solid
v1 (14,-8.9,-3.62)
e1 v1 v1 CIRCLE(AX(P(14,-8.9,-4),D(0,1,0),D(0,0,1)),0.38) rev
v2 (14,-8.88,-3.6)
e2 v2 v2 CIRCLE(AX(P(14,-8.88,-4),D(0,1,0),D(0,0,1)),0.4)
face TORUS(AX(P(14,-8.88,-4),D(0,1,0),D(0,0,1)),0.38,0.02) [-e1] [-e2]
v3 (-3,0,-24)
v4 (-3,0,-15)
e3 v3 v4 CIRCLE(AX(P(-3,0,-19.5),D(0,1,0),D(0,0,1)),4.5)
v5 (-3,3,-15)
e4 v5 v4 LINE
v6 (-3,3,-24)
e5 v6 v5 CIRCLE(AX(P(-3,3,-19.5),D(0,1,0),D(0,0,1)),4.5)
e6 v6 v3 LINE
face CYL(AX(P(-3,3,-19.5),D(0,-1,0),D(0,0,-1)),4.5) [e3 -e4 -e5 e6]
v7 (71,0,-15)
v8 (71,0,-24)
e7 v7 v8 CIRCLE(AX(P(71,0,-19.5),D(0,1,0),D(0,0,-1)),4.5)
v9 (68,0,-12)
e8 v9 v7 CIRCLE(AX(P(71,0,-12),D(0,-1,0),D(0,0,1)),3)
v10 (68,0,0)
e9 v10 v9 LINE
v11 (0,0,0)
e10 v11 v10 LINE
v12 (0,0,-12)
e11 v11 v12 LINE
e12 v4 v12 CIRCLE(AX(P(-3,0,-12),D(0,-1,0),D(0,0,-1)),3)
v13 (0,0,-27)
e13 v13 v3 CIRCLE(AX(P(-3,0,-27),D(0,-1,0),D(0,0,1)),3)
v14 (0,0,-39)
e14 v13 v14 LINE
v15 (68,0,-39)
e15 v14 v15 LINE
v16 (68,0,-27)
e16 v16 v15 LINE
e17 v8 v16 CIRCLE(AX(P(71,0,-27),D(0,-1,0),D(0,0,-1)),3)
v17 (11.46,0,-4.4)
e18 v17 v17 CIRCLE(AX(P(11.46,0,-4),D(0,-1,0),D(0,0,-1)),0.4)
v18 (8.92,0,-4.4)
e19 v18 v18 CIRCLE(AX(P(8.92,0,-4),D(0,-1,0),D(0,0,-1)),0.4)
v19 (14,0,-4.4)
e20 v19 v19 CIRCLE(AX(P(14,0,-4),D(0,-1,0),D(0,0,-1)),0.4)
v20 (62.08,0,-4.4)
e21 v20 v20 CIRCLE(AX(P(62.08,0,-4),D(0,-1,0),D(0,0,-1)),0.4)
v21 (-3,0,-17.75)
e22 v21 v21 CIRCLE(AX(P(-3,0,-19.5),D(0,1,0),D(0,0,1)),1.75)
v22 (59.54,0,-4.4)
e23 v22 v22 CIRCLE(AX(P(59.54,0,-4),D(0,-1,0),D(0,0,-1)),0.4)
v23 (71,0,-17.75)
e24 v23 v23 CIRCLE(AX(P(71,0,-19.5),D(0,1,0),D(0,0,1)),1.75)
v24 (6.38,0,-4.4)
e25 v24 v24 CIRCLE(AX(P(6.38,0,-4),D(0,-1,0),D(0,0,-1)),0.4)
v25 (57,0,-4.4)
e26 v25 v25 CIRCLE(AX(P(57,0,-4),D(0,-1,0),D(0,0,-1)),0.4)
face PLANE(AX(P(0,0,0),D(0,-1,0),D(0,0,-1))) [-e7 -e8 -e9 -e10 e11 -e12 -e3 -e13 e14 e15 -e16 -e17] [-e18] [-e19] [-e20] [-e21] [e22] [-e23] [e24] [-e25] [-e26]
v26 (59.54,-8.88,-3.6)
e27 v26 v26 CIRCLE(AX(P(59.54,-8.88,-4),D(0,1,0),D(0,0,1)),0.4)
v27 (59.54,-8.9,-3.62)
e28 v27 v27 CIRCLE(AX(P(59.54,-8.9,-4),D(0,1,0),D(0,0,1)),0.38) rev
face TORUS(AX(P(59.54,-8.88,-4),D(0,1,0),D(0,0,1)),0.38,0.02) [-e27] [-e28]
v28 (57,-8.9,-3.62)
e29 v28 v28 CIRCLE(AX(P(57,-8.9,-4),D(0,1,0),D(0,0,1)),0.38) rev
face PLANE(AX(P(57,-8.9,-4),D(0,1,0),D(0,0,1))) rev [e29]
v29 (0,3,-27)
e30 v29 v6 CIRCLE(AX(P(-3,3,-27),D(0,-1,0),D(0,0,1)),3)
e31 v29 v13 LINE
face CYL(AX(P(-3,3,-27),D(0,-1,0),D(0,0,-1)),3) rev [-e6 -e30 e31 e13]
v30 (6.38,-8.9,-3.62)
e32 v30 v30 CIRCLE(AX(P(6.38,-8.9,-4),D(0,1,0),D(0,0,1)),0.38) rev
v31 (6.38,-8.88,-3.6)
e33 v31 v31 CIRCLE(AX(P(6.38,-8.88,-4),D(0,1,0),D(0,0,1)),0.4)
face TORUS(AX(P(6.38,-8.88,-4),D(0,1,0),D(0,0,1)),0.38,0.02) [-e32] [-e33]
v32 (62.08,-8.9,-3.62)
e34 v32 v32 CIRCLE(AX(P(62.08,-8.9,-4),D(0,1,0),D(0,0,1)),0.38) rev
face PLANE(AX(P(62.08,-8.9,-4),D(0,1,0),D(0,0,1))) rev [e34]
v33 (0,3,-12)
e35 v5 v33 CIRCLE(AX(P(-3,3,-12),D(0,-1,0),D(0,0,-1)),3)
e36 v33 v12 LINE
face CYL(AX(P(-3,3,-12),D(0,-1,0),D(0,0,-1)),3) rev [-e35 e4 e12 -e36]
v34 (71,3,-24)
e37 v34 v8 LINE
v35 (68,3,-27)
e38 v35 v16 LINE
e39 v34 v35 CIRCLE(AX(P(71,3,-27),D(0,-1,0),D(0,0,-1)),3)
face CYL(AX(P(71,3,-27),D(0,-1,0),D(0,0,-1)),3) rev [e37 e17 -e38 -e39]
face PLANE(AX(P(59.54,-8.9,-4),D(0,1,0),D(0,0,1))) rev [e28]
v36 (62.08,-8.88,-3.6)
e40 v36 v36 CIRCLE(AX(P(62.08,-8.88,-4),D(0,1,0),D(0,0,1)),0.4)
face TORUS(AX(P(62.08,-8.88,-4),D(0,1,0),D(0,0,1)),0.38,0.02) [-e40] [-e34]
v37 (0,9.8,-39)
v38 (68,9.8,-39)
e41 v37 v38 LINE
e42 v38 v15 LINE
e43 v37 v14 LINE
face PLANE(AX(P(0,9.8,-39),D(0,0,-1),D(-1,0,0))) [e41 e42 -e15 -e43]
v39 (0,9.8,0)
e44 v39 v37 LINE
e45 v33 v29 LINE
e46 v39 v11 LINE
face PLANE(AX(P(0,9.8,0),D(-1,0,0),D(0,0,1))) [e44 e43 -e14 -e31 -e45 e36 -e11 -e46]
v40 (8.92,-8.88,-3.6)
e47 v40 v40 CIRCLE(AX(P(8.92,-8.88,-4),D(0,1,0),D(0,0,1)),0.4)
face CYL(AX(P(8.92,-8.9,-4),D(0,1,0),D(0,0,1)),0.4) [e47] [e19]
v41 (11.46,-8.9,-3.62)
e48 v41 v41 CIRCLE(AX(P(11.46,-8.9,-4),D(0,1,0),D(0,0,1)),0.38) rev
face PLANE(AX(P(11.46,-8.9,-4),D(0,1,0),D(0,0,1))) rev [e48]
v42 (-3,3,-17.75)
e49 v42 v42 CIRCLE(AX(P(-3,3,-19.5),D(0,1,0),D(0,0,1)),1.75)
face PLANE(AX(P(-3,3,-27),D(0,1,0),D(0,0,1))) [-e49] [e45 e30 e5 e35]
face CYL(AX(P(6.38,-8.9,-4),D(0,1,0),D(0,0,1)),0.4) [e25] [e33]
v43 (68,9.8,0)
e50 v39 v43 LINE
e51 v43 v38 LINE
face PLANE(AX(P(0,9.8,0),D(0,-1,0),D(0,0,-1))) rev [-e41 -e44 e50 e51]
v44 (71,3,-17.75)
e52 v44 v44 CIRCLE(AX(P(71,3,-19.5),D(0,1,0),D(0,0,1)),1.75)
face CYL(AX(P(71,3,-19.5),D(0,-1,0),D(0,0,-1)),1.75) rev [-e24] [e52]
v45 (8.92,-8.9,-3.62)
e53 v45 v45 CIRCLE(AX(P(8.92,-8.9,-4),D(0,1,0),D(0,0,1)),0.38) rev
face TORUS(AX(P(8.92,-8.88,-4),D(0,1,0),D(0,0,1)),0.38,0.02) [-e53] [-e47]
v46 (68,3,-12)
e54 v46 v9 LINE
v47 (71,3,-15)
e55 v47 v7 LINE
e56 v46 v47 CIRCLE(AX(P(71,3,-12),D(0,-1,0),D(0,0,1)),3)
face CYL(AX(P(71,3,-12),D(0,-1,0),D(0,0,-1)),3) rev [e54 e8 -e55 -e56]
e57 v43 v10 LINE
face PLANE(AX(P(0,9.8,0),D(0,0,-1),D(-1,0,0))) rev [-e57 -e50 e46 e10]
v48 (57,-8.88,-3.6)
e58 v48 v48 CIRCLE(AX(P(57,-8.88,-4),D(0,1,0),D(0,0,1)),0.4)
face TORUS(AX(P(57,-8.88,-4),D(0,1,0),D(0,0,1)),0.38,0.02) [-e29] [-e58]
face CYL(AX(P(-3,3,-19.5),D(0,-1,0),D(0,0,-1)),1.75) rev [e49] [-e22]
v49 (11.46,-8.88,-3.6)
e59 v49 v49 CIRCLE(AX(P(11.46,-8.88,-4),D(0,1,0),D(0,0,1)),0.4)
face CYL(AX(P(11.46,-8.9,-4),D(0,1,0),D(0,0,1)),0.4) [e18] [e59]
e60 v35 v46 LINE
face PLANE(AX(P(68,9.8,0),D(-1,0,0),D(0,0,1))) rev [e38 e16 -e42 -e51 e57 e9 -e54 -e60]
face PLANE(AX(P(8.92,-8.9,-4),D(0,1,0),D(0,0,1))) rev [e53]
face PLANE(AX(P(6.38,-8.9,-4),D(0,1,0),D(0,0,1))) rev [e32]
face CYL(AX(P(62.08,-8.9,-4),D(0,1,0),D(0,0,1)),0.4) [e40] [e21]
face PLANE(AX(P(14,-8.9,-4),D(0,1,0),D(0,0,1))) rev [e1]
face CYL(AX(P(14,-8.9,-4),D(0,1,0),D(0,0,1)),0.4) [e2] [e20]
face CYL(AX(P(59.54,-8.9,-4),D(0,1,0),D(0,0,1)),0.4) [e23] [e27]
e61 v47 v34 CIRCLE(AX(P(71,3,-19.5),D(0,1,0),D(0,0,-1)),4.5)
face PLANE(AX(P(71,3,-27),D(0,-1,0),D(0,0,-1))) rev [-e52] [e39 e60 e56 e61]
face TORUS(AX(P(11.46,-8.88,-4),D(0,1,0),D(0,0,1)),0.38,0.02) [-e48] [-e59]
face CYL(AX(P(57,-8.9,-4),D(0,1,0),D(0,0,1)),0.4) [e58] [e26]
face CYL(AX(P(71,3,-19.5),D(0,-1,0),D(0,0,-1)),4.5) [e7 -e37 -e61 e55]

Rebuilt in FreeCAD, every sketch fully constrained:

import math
import FreeCAD as App
import Part
import Sketcher


def edges_at(feature, points):
    """Names of the edges that pass closest to the given points."""
    edges = feature.Shape.Edges
    near = lambda p: min(range(len(edges)), key=lambda i: edges[i].distToShape(Part.Vertex(*p))[0])
    return sorted({f"Edge{near(p) + 1}" for p in points})

doc = App.newDocument("Part")
body = doc.addObject("PartDesign::Body", "Body")

# Sketch on XZ plane
sketch1 = doc.addObject("Sketcher::SketchObject", "Sketch")
body.addObject(sketch1)
sketch1.AttachmentSupport = (doc.XZ_Plane, [""])
sketch1.MapMode = "FlatFace"
sketch1.addGeometry(Part.LineSegment(App.Vector(0, -39, 0), App.Vector(0, 0, 0)), False)
sketch1.addGeometry(Part.LineSegment(App.Vector(0, 0, 0), App.Vector(68, 0, 0)), False)
sketch1.addGeometry(Part.LineSegment(App.Vector(68, 0, 0), App.Vector(68, -39, 0)), False)
sketch1.addGeometry(Part.LineSegment(App.Vector(68, -39, 0), App.Vector(0, -39, 0)), False)
sketch1.addConstraint(Sketcher.Constraint("Coincident", 0, 2, 1, 1))
sketch1.addConstraint(Sketcher.Constraint("Coincident", 1, 2, 2, 1))
sketch1.addConstraint(Sketcher.Constraint("Coincident", 2, 2, 3, 1))
sketch1.addConstraint(Sketcher.Constraint("Coincident", 3, 2, 0, 1))
sketch1.addConstraint(Sketcher.Constraint("Vertical", 0))
sketch1.addConstraint(Sketcher.Constraint("Horizontal", 1))
sketch1.addConstraint(Sketcher.Constraint("Vertical", 2))
sketch1.addConstraint(Sketcher.Constraint("Horizontal", 3))
sketch1.addConstraint(Sketcher.Constraint("Coincident", 0, 2, -1, 1))
sketch1.addConstraint(Sketcher.Constraint("DistanceX", 1, 1, 1, 2, 68.0))
sketch1.addConstraint(Sketcher.Constraint("DistanceY", 0, 1, 0, 2, 39.0))
pad1 = doc.addObject("PartDesign::Pad", "Pad")
body.addObject(pad1)
pad1.Profile = sketch1
pad1.Length = 9.8
pad1.Reversed = True

# Sketch on XZ plane
sketch2 = doc.addObject("Sketcher::SketchObject", "Sketch001")
body.addObject(sketch2)
sketch2.AttachmentSupport = (doc.XZ_Plane, [""])
sketch2.MapMode = "FlatFace"
sketch2.addGeometry(Part.LineSegment(App.Vector(0, -12, 0), App.Vector(0, -27, 0)), False)
sketch2.addGeometry(Part.ArcOfCircle(Part.Circle(App.Vector(-3, -27, 0), App.Vector(0, 0, 1), 3), math.radians(0), math.radians(90)), False)
sketch2.addGeometry(Part.ArcOfCircle(Part.Circle(App.Vector(-3, -19.5, 0), App.Vector(0, 0, 1), 4.5), math.radians(90), math.radians(270)), False)
sketch2.addGeometry(Part.ArcOfCircle(Part.Circle(App.Vector(-3, -12, 0), App.Vector(0, 0, 1), 3), math.radians(-90), math.radians(0)), False)
sketch2.addGeometry(Part.Circle(App.Vector(-3, -19.5, 0), App.Vector(0, 0, 1), 1.8), False)
sketch2.addConstraint(Sketcher.Constraint("Tangent", 0, 2, 1, 1))
sketch2.addConstraint(Sketcher.Constraint("Tangent", 1, 2, 2, 2))
sketch2.addConstraint(Sketcher.Constraint("Tangent", 2, 1, 3, 1))
sketch2.addConstraint(Sketcher.Constraint("Tangent", 3, 2, 0, 1))
sketch2.addConstraint(Sketcher.Constraint("Vertical", 0))
sketch2.addConstraint(Sketcher.Constraint("Coincident", 4, 3, 2, 3))
sketch2.addConstraint(Sketcher.Constraint("Equal", 1, 3))
sketch2.addConstraint(Sketcher.Constraint("PointOnObject", 0, 2, -2))
sketch2.addConstraint(Sketcher.Constraint("Vertical", 1, 3, 2, 3))
sketch2.addConstraint(Sketcher.Constraint("Radius", 1, 3.0))
sketch2.addConstraint(Sketcher.Constraint("Diameter", 4, 3.5))
sketch2.addConstraint(Sketcher.Constraint("Radius", 2, 4.5))
sketch2.addConstraint(Sketcher.Constraint("DistanceY", 1, 3, -1, 1, 27.0))
pad2 = doc.addObject("PartDesign::Pad", "Pad001")
body.addObject(pad2)
pad2.Profile = sketch2
pad2.Length = 3
pad2.Reversed = True

# Sketch on XZ plane
sketch3 = doc.addObject("Sketcher::SketchObject", "Sketch002")
body.addObject(sketch3)
sketch3.AttachmentSupport = (doc.XZ_Plane, [""])
sketch3.MapMode = "FlatFace"
sketch3.addGeometry(Part.LineSegment(App.Vector(68, -27, 0), App.Vector(68, -12, 0)), False)
sketch3.addGeometry(Part.ArcOfCircle(Part.Circle(App.Vector(71, -12, 0), App.Vector(0, 0, 1), 3), math.radians(180), math.radians(270)), False)
sketch3.addGeometry(Part.ArcOfCircle(Part.Circle(App.Vector(71, -19.5, 0), App.Vector(0, 0, 1), 4.5), math.radians(-90), math.radians(90)), False)
sketch3.addGeometry(Part.ArcOfCircle(Part.Circle(App.Vector(71, -27, 0), App.Vector(0, 0, 1), 3), math.radians(90), math.radians(180)), False)
sketch3.addGeometry(Part.Circle(App.Vector(71, -19.5, 0), App.Vector(0, 0, 1), 1.8), False)
sketch3.addConstraint(Sketcher.Constraint("Tangent", 0, 2, 1, 1))
sketch3.addConstraint(Sketcher.Constraint("Tangent", 1, 2, 2, 2))
sketch3.addConstraint(Sketcher.Constraint("Tangent", 2, 1, 3, 1))
sketch3.addConstraint(Sketcher.Constraint("Tangent", 3, 2, 0, 1))
sketch3.addConstraint(Sketcher.Constraint("Vertical", 0))
sketch3.addConstraint(Sketcher.Constraint("Coincident", 4, 3, 2, 3))
sketch3.addConstraint(Sketcher.Constraint("Equal", 1, 3))
sketch3.addConstraint(Sketcher.Constraint("Vertical", 1, 3, 2, 3))
sketch3.addConstraint(Sketcher.Constraint("Radius", 1, 3.0))
sketch3.addConstraint(Sketcher.Constraint("Diameter", 4, 3.5))
sketch3.addConstraint(Sketcher.Constraint("Radius", 2, 4.5))
sketch3.addConstraint(Sketcher.Constraint("DistanceX", -1, 1, 1, 3, 71.0))
sketch3.addConstraint(Sketcher.Constraint("DistanceY", 1, 3, -1, 1, 12.0))
pad3 = doc.addObject("PartDesign::Pad", "Pad002")
body.addObject(pad3)
pad3.Profile = sketch3
pad3.Length = 3
pad3.Reversed = True

# Sketch on XZ plane
sketch4 = doc.addObject("Sketcher::SketchObject", "Sketch003")
body.addObject(sketch4)
sketch4.AttachmentSupport = (doc.XZ_Plane, [""])
sketch4.MapMode = "FlatFace"
sketch4.addGeometry(Part.Circle(App.Vector(14, -4, 0), App.Vector(0, 0, 1), 0.4), False)
sketch4.addGeometry(Part.Circle(App.Vector(11.46, -4, 0), App.Vector(0, 0, 1), 0.4), False)
sketch4.addGeometry(Part.Circle(App.Vector(8.92, -4, 0), App.Vector(0, 0, 1), 0.4), False)
sketch4.addGeometry(Part.Circle(App.Vector(6.38, -4, 0), App.Vector(0, 0, 1), 0.4), False)
sketch4.addGeometry(Part.Circle(App.Vector(57, -4, 0), App.Vector(0, 0, 1), 0.4), False)
sketch4.addGeometry(Part.Circle(App.Vector(59.54, -4, 0), App.Vector(0, 0, 1), 0.4), False)
sketch4.addGeometry(Part.Circle(App.Vector(62.08, -4, 0), App.Vector(0, 0, 1), 0.4), False)
sketch4.addConstraint(Sketcher.Constraint("Equal", 0, 1))
sketch4.addConstraint(Sketcher.Constraint("Equal", 1, 2))
sketch4.addConstraint(Sketcher.Constraint("Equal", 2, 3))
sketch4.addConstraint(Sketcher.Constraint("Equal", 3, 4))
sketch4.addConstraint(Sketcher.Constraint("Equal", 4, 5))
sketch4.addConstraint(Sketcher.Constraint("Equal", 5, 6))
sketch4.addConstraint(Sketcher.Constraint("Horizontal", 0, 3, 1, 3))
sketch4.addConstraint(Sketcher.Constraint("Horizontal", 1, 3, 2, 3))
sketch4.addConstraint(Sketcher.Constraint("Horizontal", 2, 3, 3, 3))
sketch4.addConstraint(Sketcher.Constraint("Horizontal", 3, 3, 4, 3))
sketch4.addConstraint(Sketcher.Constraint("Horizontal", 4, 3, 5, 3))
sketch4.addConstraint(Sketcher.Constraint("Horizontal", 5, 3, 6, 3))
sketch4.addConstraint(Sketcher.Constraint("Diameter", 0, 0.8))
sketch4.addConstraint(Sketcher.Constraint("DistanceX", -1, 1, 0, 3, 14.0))
sketch4.addConstraint(Sketcher.Constraint("DistanceY", 0, 3, -1, 1, 4.0))
sketch4.addConstraint(Sketcher.Constraint("DistanceX", -1, 1, 4, 3, 57.0))
sketch4.addConstraint(Sketcher.Constraint("DistanceX", -1, 1, 1, 3, 11.46))
sketch4.addConstraint(Sketcher.Constraint("DistanceX", -1, 1, 2, 3, 8.92))
sketch4.addConstraint(Sketcher.Constraint("DistanceX", -1, 1, 3, 3, 6.38))
sketch4.addConstraint(Sketcher.Constraint("DistanceX", -1, 1, 5, 3, 59.54))
sketch4.addConstraint(Sketcher.Constraint("DistanceX", -1, 1, 6, 3, 62.08))
pad4 = doc.addObject("PartDesign::Pad", "Pad003")
body.addObject(pad4)
pad4.Profile = sketch4
pad4.Length = 8.9
doc.recompute()

fillet = doc.addObject("PartDesign::Fillet", "Fillet")
body.addObject(fillet)
fillet.Base = (pad4, edges_at(pad4, [
    (14, -8.9, -4.4),
    (57, -8.9, -4.4),
    (11.46, -8.9, -4.4),
    (8.92, -8.9, -4.4),
    (6.38, -8.9, -4.4),
    (59.54, -8.9, -4.4),
    (62.08, -8.9, -4.4),
]))
fillet.Radius = 0.02

doc.recompute()
